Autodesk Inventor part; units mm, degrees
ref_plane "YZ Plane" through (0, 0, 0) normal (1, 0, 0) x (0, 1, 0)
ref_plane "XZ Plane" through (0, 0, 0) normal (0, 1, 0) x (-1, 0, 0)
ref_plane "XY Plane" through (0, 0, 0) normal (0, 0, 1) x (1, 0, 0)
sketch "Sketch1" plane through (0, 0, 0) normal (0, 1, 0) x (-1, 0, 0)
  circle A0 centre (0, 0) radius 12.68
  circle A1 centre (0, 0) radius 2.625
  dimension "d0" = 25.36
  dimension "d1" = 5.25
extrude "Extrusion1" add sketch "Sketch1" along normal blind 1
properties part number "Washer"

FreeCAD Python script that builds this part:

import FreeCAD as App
import Part
import Sketcher
Q = App.Units.Quantity

doc = App.newDocument("Part")
body = doc.addObject("PartDesign::Body", "Body")

sketch1 = body.newObject("Sketcher::SketchObject", "Sketch")
sketch1.AttachmentSupport = (doc.getObject("XZ_Plane"), [""])
sketch1.MapMode = "FlatFace"
sketch1.addGeometry(Part.Circle(App.Vector(0, 0, 0), App.Vector(0, 0, 1), 12.7), False)
sketch1.addGeometry(Part.Circle(App.Vector(0, 0, 0), App.Vector(0, 0, 1), 2.6), False)
sketch1.addConstraint(Sketcher.Constraint("Coincident", 0, 3, -1, 1))
sketch1.addConstraint(Sketcher.Constraint("Coincident", 1, 3, -1, 1))
sketch1.addConstraint(Sketcher.Constraint("Diameter", 0, Q("25.36 mm")))
sketch1.addConstraint(Sketcher.Constraint("Diameter", 1, Q("5.25 mm")))
pad1 = body.newObject("PartDesign::Pad", "Pad")
pad1.Profile = sketch1
pad1.Length = 1
pad1.Reversed = True

doc.recompute()
